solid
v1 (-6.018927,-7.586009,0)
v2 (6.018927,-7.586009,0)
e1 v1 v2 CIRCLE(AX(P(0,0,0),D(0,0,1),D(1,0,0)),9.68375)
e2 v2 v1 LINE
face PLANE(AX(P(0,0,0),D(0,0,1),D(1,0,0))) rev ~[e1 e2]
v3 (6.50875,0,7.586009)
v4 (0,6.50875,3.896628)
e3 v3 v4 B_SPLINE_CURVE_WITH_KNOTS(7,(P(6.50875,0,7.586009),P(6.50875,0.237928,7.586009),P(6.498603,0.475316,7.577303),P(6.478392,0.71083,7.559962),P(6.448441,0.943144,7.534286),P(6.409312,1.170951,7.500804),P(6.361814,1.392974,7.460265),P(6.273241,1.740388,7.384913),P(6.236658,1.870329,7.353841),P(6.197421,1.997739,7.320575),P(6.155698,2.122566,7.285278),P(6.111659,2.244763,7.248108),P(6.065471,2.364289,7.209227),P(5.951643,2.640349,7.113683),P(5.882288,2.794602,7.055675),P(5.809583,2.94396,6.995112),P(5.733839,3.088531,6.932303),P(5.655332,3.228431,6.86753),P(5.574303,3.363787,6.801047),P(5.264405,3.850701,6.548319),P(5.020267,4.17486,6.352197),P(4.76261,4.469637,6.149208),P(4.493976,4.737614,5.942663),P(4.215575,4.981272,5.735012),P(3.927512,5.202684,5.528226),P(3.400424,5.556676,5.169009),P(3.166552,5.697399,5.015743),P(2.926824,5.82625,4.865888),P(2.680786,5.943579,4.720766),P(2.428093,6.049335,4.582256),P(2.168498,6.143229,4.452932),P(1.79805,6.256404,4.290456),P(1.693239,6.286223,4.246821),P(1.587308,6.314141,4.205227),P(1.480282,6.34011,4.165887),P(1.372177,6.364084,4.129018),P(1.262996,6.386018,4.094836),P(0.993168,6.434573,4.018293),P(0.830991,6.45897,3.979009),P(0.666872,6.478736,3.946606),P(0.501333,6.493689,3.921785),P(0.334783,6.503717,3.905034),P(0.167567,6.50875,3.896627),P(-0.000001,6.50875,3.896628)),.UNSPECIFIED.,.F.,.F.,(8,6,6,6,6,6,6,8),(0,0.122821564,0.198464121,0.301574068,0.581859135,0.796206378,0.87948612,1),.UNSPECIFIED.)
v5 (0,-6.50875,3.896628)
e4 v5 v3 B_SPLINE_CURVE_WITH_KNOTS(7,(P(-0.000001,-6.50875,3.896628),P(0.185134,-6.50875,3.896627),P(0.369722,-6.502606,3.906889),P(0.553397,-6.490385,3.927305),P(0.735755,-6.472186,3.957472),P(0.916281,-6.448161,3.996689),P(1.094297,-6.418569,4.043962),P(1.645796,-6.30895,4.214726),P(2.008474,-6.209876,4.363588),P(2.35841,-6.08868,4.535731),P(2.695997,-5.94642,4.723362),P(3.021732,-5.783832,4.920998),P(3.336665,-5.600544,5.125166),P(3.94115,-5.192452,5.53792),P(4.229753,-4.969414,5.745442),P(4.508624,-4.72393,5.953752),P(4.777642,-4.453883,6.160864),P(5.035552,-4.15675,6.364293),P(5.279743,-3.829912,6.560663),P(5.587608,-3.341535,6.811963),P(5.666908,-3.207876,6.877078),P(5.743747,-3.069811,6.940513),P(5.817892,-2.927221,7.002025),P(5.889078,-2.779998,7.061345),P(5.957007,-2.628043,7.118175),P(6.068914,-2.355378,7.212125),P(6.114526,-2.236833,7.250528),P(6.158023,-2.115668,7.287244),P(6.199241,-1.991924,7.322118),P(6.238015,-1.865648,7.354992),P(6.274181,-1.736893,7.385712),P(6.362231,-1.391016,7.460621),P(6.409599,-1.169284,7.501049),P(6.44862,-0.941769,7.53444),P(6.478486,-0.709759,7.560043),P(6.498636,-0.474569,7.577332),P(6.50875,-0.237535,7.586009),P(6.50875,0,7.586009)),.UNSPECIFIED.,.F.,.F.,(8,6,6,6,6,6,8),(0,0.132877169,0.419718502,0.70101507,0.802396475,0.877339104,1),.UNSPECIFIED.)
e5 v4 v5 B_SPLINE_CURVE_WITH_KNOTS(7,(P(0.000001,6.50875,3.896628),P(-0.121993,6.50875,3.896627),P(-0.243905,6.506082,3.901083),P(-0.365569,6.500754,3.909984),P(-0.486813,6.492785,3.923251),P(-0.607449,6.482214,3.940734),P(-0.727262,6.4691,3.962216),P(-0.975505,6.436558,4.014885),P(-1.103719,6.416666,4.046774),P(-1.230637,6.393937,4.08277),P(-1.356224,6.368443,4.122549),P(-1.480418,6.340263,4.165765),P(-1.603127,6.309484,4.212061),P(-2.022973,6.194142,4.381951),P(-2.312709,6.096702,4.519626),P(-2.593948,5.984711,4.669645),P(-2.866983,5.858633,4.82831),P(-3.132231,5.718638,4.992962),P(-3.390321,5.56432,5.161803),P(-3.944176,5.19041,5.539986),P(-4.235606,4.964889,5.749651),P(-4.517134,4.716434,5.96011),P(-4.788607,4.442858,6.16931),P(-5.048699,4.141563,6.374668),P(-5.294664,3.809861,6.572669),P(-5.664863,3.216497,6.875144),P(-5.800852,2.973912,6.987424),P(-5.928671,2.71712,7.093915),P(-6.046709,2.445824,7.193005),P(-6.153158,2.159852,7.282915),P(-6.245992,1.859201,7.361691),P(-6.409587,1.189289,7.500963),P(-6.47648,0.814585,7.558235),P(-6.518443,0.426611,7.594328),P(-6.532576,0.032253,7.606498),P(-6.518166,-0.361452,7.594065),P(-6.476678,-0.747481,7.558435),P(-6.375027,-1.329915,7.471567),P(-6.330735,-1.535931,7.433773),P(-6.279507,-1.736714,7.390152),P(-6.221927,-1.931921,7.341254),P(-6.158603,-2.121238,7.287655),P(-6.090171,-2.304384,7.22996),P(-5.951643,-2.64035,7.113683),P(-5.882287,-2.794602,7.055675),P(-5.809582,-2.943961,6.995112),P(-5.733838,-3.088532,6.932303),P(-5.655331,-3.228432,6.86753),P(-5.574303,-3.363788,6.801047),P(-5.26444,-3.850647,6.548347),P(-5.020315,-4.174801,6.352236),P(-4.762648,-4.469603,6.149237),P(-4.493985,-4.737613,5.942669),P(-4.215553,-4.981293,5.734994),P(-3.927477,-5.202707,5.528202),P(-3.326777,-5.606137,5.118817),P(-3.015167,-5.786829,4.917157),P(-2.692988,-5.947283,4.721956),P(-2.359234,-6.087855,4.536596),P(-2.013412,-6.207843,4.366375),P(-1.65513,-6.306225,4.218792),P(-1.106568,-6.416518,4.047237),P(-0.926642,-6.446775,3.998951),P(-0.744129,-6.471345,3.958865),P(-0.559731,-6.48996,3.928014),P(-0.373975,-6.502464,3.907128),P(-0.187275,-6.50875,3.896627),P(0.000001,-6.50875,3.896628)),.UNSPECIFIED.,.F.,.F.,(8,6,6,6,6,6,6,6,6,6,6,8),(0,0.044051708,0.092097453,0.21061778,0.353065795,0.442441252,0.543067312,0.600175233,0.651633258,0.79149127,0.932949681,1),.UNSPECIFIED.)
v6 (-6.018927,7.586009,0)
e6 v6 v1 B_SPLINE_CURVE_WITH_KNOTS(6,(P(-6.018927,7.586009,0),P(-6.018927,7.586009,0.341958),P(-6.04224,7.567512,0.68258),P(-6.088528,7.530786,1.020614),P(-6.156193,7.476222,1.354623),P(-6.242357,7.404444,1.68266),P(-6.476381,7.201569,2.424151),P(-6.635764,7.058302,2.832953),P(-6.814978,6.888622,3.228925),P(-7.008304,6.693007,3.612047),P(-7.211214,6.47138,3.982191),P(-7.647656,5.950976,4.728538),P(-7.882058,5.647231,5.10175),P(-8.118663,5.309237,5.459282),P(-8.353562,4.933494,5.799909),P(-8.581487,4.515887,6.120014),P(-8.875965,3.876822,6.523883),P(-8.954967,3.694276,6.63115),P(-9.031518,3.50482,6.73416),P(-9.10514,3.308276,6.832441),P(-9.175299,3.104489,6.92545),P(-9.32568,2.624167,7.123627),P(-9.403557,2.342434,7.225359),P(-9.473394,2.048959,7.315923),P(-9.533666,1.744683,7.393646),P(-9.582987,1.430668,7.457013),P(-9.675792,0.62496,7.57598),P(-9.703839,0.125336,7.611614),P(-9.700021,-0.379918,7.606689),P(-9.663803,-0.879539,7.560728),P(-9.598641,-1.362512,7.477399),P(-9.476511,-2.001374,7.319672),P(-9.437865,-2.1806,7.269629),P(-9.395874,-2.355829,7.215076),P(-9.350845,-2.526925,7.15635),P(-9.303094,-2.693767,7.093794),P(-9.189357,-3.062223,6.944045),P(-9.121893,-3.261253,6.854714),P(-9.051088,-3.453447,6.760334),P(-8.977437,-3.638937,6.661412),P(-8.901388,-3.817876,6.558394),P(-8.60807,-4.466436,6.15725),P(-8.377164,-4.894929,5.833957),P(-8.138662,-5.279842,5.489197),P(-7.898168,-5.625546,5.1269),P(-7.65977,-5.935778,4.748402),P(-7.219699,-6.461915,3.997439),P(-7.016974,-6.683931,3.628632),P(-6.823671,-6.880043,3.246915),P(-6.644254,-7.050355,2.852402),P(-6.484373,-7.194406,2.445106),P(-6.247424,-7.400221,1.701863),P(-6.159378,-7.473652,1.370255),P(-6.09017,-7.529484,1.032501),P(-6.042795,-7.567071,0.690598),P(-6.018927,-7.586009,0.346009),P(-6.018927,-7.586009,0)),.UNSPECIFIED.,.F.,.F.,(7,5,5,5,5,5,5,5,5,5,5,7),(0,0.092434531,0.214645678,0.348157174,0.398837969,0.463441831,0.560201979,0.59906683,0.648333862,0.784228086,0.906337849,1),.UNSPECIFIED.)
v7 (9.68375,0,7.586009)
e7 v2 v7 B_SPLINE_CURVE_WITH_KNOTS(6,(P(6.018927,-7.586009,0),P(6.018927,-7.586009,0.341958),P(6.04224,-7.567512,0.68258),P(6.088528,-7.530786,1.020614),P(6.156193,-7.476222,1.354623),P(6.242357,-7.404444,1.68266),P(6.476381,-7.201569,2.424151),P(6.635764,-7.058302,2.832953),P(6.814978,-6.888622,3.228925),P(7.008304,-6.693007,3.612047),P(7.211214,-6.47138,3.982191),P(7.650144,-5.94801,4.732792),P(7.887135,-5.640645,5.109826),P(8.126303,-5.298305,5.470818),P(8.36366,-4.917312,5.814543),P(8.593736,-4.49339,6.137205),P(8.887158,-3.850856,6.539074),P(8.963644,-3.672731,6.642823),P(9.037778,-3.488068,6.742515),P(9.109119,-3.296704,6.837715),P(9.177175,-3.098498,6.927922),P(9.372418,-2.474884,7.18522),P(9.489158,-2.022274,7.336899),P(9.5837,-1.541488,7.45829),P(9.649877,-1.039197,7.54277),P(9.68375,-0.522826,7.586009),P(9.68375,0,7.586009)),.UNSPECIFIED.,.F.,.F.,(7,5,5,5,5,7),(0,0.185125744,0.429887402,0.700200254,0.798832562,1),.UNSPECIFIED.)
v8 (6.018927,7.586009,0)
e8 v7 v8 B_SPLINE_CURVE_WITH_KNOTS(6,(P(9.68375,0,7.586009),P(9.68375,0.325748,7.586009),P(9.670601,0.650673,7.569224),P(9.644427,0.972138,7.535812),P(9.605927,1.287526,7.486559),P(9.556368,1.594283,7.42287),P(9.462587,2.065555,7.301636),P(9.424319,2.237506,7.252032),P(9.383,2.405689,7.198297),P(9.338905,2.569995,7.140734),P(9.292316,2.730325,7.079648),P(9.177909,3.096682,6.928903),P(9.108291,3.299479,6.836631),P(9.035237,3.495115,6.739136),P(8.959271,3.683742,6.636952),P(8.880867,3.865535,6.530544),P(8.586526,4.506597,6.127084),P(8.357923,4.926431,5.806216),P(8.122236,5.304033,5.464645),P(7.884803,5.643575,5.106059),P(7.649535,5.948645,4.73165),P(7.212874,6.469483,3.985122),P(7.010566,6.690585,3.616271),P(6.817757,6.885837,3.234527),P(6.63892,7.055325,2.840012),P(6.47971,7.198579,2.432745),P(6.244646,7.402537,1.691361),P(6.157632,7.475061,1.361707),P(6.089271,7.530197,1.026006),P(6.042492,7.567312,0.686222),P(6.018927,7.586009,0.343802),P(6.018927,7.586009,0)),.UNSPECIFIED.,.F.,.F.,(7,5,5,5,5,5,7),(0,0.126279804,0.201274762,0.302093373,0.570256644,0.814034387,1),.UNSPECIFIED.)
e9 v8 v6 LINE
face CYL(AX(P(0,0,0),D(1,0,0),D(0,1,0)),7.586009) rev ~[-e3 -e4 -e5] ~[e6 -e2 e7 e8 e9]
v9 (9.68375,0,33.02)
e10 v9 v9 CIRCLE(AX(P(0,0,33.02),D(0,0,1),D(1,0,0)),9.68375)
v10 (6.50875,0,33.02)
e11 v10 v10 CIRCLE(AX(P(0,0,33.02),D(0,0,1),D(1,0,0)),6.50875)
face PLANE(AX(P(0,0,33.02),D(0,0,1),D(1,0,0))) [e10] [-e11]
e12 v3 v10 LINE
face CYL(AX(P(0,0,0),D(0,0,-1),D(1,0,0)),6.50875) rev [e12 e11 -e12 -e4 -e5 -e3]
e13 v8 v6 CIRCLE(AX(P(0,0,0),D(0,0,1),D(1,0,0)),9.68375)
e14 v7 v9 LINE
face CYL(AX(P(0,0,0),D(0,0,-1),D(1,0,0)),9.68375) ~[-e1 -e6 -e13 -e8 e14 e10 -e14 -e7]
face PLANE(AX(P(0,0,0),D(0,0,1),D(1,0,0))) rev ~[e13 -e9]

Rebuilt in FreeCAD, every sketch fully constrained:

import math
import FreeCAD as App
import Part
import Sketcher

V = App.Vector
Q = App.Units.Quantity

doc = App.newDocument("Part")
body = doc.addObject("PartDesign::Body", "Body")

sketch1 = body.newObject("Sketcher::SketchObject", "Sketch")
sketch1.AttachmentSupport = (doc.getObject("XY_Plane"), [""])
sketch1.MapMode = "FlatFace"
sketch1.addGeometry([
    Part.Circle(V(0, 0, 0), V(0, 0, 1), 10),
    Part.Circle(V(0, 0, 0), V(0, 0, 1), 7),
], False)
sketch1.addConstraint([
    Sketcher.Constraint("Coincident", 0, 3, -1, 1),
    Sketcher.Constraint("Coincident", 1, 3, -1, 1),
    Sketcher.Constraint("Diameter", 0, Q("19.3675 mm")),
    Sketcher.Constraint("Diameter", 1, Q("13.0175 mm")),
])
pad1 = body.newObject("PartDesign::Pad", "Pad")
pad1.Profile = sketch1
pad1.Length = 33.02

sketch2 = body.newObject("Sketcher::SketchObject", "Sketch001")
sketch2.AttachmentSupport = (doc.getObject("YZ_Plane"), [""])
sketch2.MapMode = "FlatFace"
sketch2.addGeometry([
    Part.ArcOfCircle(Part.Circle(V(0, 0, 0), V(0, 0, 1), 8), math.radians(0), math.radians(180)),
    Part.LineSegment(V(-8, 0, 0), V(8, 0, 0)),
], False)
sketch2.addConstraint([
    Sketcher.Constraint("Coincident", 0, 1, 1, 2),
    Sketcher.Constraint("Coincident", 1, 1, 0, 2),
    Sketcher.Constraint("Horizontal", 1),
    Sketcher.Constraint("Coincident", 0, 3, -1, 1),
    Sketcher.Constraint("PointOnObject", 0, 1, -1),
    Sketcher.Constraint("Radius", 0, Q("7.586009 mm")),
])
pocket1 = body.newObject("PartDesign::Pocket", "Pocket")
pocket1.Profile = sketch2
pocket1.Length = 25

sketch3 = body.newObject("Sketcher::SketchObject", "Sketch002")
sketch3.AttachmentSupport = (doc.getObject("YZ_Plane"), [""])
sketch3.MapMode = "FlatFace"
sketch3.addGeometry([
    Part.ArcOfCircle(Part.Circle(V(0, 0, 0), V(0, 0, 1), 8), math.radians(0), math.radians(180)),
    Part.LineSegment(V(-8, 0, 0), V(8, 0, 0)),
], False)
sketch3.addConstraint([
    Sketcher.Constraint("Coincident", 0, 1, 1, 2),
    Sketcher.Constraint("Coincident", 1, 1, 0, 2),
    Sketcher.Constraint("Horizontal", 1),
    Sketcher.Constraint("Coincident", 0, 3, -1, 1),
    Sketcher.Constraint("PointOnObject", 0, 1, -1),
    Sketcher.Constraint("Radius", 0, Q("7.586009 mm")),
])
pocket2 = body.newObject("PartDesign::Pocket", "Pocket001")
pocket2.Profile = sketch3
pocket2.Length = 54.6
pocket2.Reversed = True

doc.recompute()
